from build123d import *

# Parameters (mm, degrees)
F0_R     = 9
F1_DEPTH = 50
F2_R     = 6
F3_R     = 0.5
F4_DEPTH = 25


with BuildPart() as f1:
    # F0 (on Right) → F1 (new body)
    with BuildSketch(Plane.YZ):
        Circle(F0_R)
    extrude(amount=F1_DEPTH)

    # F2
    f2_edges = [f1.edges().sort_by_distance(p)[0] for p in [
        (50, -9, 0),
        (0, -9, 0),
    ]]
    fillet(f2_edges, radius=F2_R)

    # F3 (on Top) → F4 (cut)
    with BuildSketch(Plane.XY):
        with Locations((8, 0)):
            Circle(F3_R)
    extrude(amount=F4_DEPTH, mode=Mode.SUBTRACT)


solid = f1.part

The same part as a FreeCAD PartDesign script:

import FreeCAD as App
import Part
import Sketcher
from FreeCAD import Vector


def edges_at(feature, points):
    """Names of the edges that pass closest to the given points."""
    edges = feature.Shape.Edges
    near = lambda p: min(range(len(edges)), key=lambda i: edges[i].distToShape(Part.Vertex(*p))[0])
    return sorted({f"Edge{near(p) + 1}" for p in points})

doc = App.newDocument("Part")
params = doc.addObject("Spreadsheet::Sheet", "Params")
for row, (alias, value) in enumerate([
    ("sketch1_diameter", "18 mm"),
    ("pad1_length", "50 mm"),
    ("fillet_radius", "6 mm"),
    ("sketch2_diameter", "1 mm"),
    ("pocket1_length", "25 mm"),
], start=1):
    params.set(f"A{row}", alias)
    params.set(f"B{row}", "=" + value)
    params.setAlias(f"B{row}", alias)

body = doc.addObject("PartDesign::Body", "Body")

# Sketch on YZ plane
sketch1 = body.newObject("Sketcher::SketchObject", "Sketch")
sketch1.AttachmentSupport = (doc.getObject("YZ_Plane"), [""])
sketch1.MapMode = "FlatFace"
sketch1.addGeometry(Part.Circle(Vector(0, 0, 0), Vector(0, 0, 1), 9), False)
sketch1.addConstraint([
    Sketcher.Constraint("Coincident", 0, 3, -1, 1),
    Sketcher.Constraint("Diameter", 0, 18.0),
])
sketch1.setExpression("Constraints[1]", "Params.sketch1_diameter")
pad1 = body.newObject("PartDesign::Pad", "Pad")
pad1.Profile = sketch1
pad1.setExpression("Length", "Params.pad1_length")
doc.recompute()

fillet = body.newObject("PartDesign::Fillet", "Fillet")
fillet.Base = (pad1, edges_at(pad1, [(50, -9, 0), (0, -9, 0)]))
fillet.setExpression("Radius", "Params.fillet_radius")

# Sketch on XY plane
sketch2 = body.newObject("Sketcher::SketchObject", "Sketch001")
sketch2.AttachmentSupport = (doc.getObject("XY_Plane"), [""])
sketch2.MapMode = "FlatFace"
sketch2.addGeometry(Part.Circle(Vector(8, 0, 0), Vector(0, 0, 1), 0.5), False)
sketch2.addConstraint([
    Sketcher.Constraint("PointOnObject", 0, 3, -1),
    Sketcher.Constraint("Diameter", 0, 1.0),
    Sketcher.Constraint("DistanceX", -1, 1, 0, 3, 8.0),
])
sketch2.setExpression("Constraints[1]", "Params.sketch2_diameter")
pocket1 = body.newObject("PartDesign::Pocket", "Pocket")
pocket1.Profile = sketch2
pocket1.setExpression("Length", "Params.pocket1_length")
pocket1.Reversed = True

doc.recompute()
